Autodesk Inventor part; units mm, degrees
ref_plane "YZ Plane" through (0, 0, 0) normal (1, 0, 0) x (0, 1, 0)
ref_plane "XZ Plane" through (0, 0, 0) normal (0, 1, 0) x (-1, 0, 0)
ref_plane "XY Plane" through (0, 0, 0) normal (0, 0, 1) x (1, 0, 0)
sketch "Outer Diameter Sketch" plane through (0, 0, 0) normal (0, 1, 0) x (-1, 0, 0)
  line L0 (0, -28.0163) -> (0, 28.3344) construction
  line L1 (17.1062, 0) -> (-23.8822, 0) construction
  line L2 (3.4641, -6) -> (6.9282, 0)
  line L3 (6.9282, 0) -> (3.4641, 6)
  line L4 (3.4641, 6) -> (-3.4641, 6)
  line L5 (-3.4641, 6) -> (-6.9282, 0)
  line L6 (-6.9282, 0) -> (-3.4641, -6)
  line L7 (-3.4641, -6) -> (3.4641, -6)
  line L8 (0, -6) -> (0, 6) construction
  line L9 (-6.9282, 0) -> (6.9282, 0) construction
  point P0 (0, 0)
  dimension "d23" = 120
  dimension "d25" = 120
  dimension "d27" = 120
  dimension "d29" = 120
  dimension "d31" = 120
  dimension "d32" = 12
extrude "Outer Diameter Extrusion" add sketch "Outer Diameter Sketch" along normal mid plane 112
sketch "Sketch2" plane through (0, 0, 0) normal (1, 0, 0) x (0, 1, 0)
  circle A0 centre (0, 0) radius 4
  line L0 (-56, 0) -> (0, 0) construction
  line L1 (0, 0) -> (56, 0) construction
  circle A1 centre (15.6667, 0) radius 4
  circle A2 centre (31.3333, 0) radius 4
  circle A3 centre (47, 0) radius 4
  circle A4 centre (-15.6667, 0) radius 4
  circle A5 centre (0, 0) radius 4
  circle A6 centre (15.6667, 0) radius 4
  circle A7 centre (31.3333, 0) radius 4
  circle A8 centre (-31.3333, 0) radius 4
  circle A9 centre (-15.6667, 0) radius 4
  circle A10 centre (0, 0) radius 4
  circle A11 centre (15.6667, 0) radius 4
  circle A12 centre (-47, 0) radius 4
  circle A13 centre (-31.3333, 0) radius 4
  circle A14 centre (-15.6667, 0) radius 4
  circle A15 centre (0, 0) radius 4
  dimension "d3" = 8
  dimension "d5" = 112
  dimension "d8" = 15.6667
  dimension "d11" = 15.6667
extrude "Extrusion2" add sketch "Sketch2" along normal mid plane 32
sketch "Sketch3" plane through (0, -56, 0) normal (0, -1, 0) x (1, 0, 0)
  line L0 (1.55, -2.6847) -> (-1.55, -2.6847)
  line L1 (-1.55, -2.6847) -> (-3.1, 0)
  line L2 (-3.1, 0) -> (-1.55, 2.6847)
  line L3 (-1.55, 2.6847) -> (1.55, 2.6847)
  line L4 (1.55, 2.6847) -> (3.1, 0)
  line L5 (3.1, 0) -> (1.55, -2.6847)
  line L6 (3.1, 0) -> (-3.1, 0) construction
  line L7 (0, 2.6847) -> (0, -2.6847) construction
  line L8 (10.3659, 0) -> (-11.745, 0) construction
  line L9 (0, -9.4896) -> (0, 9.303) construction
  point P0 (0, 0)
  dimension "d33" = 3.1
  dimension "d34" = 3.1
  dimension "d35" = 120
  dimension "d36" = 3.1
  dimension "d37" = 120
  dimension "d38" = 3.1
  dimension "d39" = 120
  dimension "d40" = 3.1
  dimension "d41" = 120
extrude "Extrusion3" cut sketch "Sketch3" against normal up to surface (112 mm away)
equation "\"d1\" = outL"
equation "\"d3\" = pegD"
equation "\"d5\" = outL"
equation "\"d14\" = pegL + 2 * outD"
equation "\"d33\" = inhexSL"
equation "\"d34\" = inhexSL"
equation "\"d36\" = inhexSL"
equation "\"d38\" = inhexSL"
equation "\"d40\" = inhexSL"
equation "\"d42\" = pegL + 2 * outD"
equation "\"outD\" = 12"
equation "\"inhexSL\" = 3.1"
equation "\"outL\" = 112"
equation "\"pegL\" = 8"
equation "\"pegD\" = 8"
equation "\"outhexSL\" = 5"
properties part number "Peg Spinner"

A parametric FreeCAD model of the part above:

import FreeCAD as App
import Part
import Sketcher

V = App.Vector
Q = App.Units.Quantity


def add_polygon(sketch, points):
    """Adds a closed chain of lines whose ends are joined by coincident constraints."""
    first, n = sketch.GeometryCount, len(points)
    for a, b in zip(points, points[1:] + points[:1]):
        sketch.addGeometry(Part.LineSegment(App.Vector(*a, 0), App.Vector(*b, 0)), False)
    for i in range(n):
        sketch.addConstraint(Sketcher.Constraint("Coincident", first + i, 2, first + (i + 1) % n, 1))

doc = App.newDocument("Part")
body = doc.addObject("PartDesign::Body", "Body")

# Sketch on XZ plane
sketch1 = body.newObject("Sketcher::SketchObject", "Sketch")
sketch1.AttachmentSupport = (doc.getObject("XZ_Plane"), [""])
sketch1.MapMode = "FlatFace"
add_polygon(sketch1, [(3.4641, -6), (-3.4641, -6), (-6.9282, 0), (-3.4641, 6), (3.4641, 6), (6.9282, 0)])  # lines 0-5
sketch1.addConstraint([
    Sketcher.Constraint("Horizontal", 0),
    Sketcher.Constraint("Horizontal", 3),
    Sketcher.Constraint("Symmetric", 0, 2, 3, 2, -1, 1),
    Sketcher.Constraint("Symmetric", 1, 2, 4, 2, -1, 1),
    Sketcher.Constraint("PointOnObject", 1, 2, -1),
    Sketcher.Constraint("Parallel", 2, 5),
    Sketcher.Constraint("Vertical", 0, 2, 2, 2),
    Sketcher.Constraint("Angle", 1, Q("120 deg")),
    Sketcher.Constraint("DistanceY", 0, 2, 2, 2, Q("12 mm")),
    Sketcher.Constraint("DistanceX", 0, 2, 0, 1, Q("6.9282 mm")),
])
pad1 = body.newObject("PartDesign::Pad", "Pad")
pad1.Profile = sketch1
pad1.Length = 112
pad1.Midplane = True

# Sketch on YZ plane
sketch2 = body.newObject("Sketcher::SketchObject", "Sketch001")
sketch2.AttachmentSupport = (doc.getObject("YZ_Plane"), [""])
sketch2.MapMode = "FlatFace"
sketch2.addGeometry([
    Part.Circle(V(0, 0, 0), V(0, 0, 1), 4),  # 0
    Part.Circle(V(15.6667, 0, 0), V(0, 0, 1), 4),  # 1
    Part.Circle(V(31.3333, 0, 0), V(0, 0, 1), 4),  # 2
    Part.Circle(V(47, 0, 0), V(0, 0, 1), 4),  # 3
    Part.Circle(V(-15.6667, 0, 0), V(0, 0, 1), 4),  # 4
    Part.Circle(V(-31.3333, 0, 0), V(0, 0, 1), 4),  # 5
    Part.Circle(V(-47, 0, 0), V(0, 0, 1), 4),  # 6
], False)
sketch2.addConstraint([
    Sketcher.Constraint("Coincident", 0, 3, -1, 1),
    Sketcher.Constraint("Equal", 0, 1),
    Sketcher.Constraint("Equal", 1, 2),
    Sketcher.Constraint("Equal", 2, 3),
    Sketcher.Constraint("Equal", 3, 4),
    Sketcher.Constraint("Equal", 4, 5),
    Sketcher.Constraint("Equal", 5, 6),
    Sketcher.Constraint("Symmetric", 1, 3, 4, 3, -1, 1),
    Sketcher.Constraint("Symmetric", 2, 3, 5, 3, -1, 1),
    Sketcher.Constraint("Symmetric", 3, 3, 6, 3, -1, 1),
    Sketcher.Constraint("PointOnObject", 1, 3, -1),
    Sketcher.Constraint("PointOnObject", 2, 3, -1),
    Sketcher.Constraint("PointOnObject", 3, 3, -1),
    Sketcher.Constraint("Diameter", 0, Q("8 mm")),
    Sketcher.Constraint("DistanceX", -1, 1, 3, 3, Q("47 mm")),
    Sketcher.Constraint("DistanceX", 4, 3, 2, 3, Q("47 mm")),
    Sketcher.Constraint("DistanceX", -1, 1, 1, 3, Q("15.6667 mm")),
])
pad2 = body.newObject("PartDesign::Pad", "Pad001")
pad2.Profile = sketch2
pad2.Length = 32
pad2.Midplane = True

# Sketch on XZ plane
sketch3 = body.newObject("Sketcher::SketchObject", "Sketch002")
sketch3.AttachmentSupport = (doc.getObject("XZ_Plane"), [""])
sketch3.MapMode = "FlatFace"
sketch3.AttachmentOffset = App.Placement(V(0, 0, 56), App.Rotation())
add_polygon(sketch3, [(-1.55, -2.6847), (1.55, -2.6847), (3.1, 0), (1.55, 2.6847), (-1.55, 2.6847), (-3.1, 0)])  # lines 0-5
sketch3.addConstraint([
    Sketcher.Constraint("Horizontal", 0),
    Sketcher.Constraint("Horizontal", 3),
    Sketcher.Constraint("Symmetric", 0, 2, 3, 2, -1, 1),
    Sketcher.Constraint("Symmetric", 1, 2, 4, 2, -1, 1),
    Sketcher.Constraint("PointOnObject", 1, 2, -1),
    Sketcher.Constraint("Parallel", 2, 5),
    Sketcher.Constraint("Vertical", 0, 2, 2, 2),
    Sketcher.Constraint("Angle", 2, Q("119.9998 deg")),
    Sketcher.Constraint("DistanceX", 0, 1, 0, 2, Q("3.1 mm")),
    Sketcher.Constraint("Distance", 1, Q("3.1 mm")),
])
pocket1 = body.newObject("PartDesign::Pocket", "Pocket")
pocket1.Profile = sketch3
pocket1.Length = 112

doc.recompute()
